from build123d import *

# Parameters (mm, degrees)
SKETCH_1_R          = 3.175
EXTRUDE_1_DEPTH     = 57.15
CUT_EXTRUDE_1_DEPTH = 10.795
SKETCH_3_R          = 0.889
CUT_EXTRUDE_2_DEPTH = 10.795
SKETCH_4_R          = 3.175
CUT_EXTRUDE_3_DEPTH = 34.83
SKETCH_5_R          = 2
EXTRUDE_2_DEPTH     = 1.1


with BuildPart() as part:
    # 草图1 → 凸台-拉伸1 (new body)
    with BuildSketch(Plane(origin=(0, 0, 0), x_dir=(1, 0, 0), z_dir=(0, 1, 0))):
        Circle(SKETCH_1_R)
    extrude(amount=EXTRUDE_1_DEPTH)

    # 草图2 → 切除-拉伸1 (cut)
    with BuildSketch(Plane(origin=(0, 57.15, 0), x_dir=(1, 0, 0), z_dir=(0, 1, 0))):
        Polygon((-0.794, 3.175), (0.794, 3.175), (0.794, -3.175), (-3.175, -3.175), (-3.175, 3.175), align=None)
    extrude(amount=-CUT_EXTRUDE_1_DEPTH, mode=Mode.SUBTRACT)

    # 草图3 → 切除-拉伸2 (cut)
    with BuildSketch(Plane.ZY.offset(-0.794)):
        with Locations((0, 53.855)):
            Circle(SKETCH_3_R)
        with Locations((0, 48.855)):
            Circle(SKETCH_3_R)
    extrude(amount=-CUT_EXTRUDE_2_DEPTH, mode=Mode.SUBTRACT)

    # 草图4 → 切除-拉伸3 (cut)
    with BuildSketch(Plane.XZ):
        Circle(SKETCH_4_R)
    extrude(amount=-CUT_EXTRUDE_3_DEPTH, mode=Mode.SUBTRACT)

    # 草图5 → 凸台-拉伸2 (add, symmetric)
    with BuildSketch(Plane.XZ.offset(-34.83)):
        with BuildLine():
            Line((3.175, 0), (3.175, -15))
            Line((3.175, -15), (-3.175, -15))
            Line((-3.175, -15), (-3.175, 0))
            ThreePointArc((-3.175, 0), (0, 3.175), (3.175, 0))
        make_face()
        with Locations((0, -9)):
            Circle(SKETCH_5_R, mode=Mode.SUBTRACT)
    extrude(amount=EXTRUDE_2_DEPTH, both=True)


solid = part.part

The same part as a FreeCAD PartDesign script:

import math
import FreeCAD as App
import Part
import Sketcher
from FreeCAD import Vector
Q = App.Units.Quantity

doc = App.newDocument("Part")
body = doc.addObject("PartDesign::Body", "Body")

# Sketch on XZ plane
sketch1 = doc.addObject("Sketcher::SketchObject", "Sketch")
body.addObject(sketch1)
sketch1.AttachmentSupport = (doc.XZ_Plane, [""])
sketch1.MapMode = "FlatFace"
sketch1.addGeometry(Part.Circle(Vector(0, 0, 0), Vector(0, 0, 1), 3.2), False)
sketch1.addConstraint(Sketcher.Constraint("Coincident", 0, 3, -1, 1))
sketch1.addConstraint(Sketcher.Constraint("Diameter", 0, Q("0.25 in")))
pad1 = doc.addObject("PartDesign::Pad", "Pad")
body.addObject(pad1)
pad1.Profile = sketch1
pad1.Length = Q("2.25 in")
pad1.Reversed = True

# Sketch on XZ plane
sketch2 = doc.addObject("Sketcher::SketchObject", "Sketch001")
body.addObject(sketch2)
sketch2.AttachmentSupport = (doc.XZ_Plane, [""])
sketch2.MapMode = "FlatFace"
sketch2.AttachmentOffset = App.Placement(Vector(0, 0, -2.25 * 25.4), App.Rotation())
sketch2.addGeometry(Part.LineSegment(Vector(0.8, -3.2, 0), Vector(-3.2, -3.2, 0)), False)
sketch2.addGeometry(Part.LineSegment(Vector(-3.2, -3.2, 0), Vector(-3.2, 3.2, 0)), False)
sketch2.addGeometry(Part.LineSegment(Vector(-3.2, 3.2, 0), Vector(0.8, 3.2, 0)), False)
sketch2.addGeometry(Part.LineSegment(Vector(0.8, 3.2, 0), Vector(0.8, -3.2, 0)), False)
sketch2.addConstraint(Sketcher.Constraint("Coincident", 0, 2, 1, 1))
sketch2.addConstraint(Sketcher.Constraint("Coincident", 1, 2, 2, 1))
sketch2.addConstraint(Sketcher.Constraint("Coincident", 2, 2, 3, 1))
sketch2.addConstraint(Sketcher.Constraint("Coincident", 3, 2, 0, 1))
sketch2.addConstraint(Sketcher.Constraint("Horizontal", 0))
sketch2.addConstraint(Sketcher.Constraint("Vertical", 1))
sketch2.addConstraint(Sketcher.Constraint("Horizontal", 2))
sketch2.addConstraint(Sketcher.Constraint("Vertical", 3))
sketch2.addConstraint(Sketcher.Constraint("DistanceY", 1, 1, 1, 2, Q("0.25 in")))
sketch2.addConstraint(Sketcher.Constraint("DistanceX", 0, 2, -1, 1, Q("0.125 in")))
sketch2.addConstraint(Sketcher.Constraint("DistanceY", 0, 2, -1, 1, Q("0.125 in")))
sketch2.addConstraint(Sketcher.Constraint("DistanceX", 0, 2, 0, 1, 3.969))
pocket1 = doc.addObject("PartDesign::Pocket", "Pocket")
body.addObject(pocket1)
pocket1.Profile = sketch2
pocket1.Length = Q("0.425 in")
pocket1.Reversed = True

# Sketch on YZ plane
sketch3 = doc.addObject("Sketcher::SketchObject", "Sketch002")
body.addObject(sketch3)
sketch3.AttachmentSupport = (doc.YZ_Plane, [""])
sketch3.MapMode = "FlatFace"
sketch3.AttachmentOffset = App.Placement(Vector(0, 0, 0.794), App.Rotation())
sketch3.addGeometry(Part.Circle(Vector(53.9, 0, 0), Vector(0, 0, 1), 0.9), False)
sketch3.addGeometry(Part.Circle(Vector(48.9, 0, 0), Vector(0, 0, 1), 0.9), False)
sketch3.addConstraint(Sketcher.Constraint("Equal", 0, 1))
sketch3.addConstraint(Sketcher.Constraint("PointOnObject", 0, 3, -1))
sketch3.addConstraint(Sketcher.Constraint("PointOnObject", 1, 3, -1))
sketch3.addConstraint(Sketcher.Constraint("Diameter", 0, Q("0.07 in")))
sketch3.addConstraint(Sketcher.Constraint("DistanceX", -1, 1, 0, 3, 53.855))
sketch3.addConstraint(Sketcher.Constraint("DistanceX", -1, 1, 1, 3, 48.855))
pocket2 = doc.addObject("PartDesign::Pocket", "Pocket001")
body.addObject(pocket2)
pocket2.Profile = sketch3
pocket2.Length = Q("0.425 in")
pocket2.Reversed = True

# Sketch on XZ plane
sketch4 = doc.addObject("Sketcher::SketchObject", "Sketch003")
body.addObject(sketch4)
sketch4.AttachmentSupport = (doc.XZ_Plane, [""])
sketch4.MapMode = "FlatFace"
sketch4.addGeometry(Part.Circle(Vector(0, 0, 0), Vector(0, 0, 1), 3.2), False)
sketch4.addConstraint(Sketcher.Constraint("Coincident", 0, 3, -1, 1))
sketch4.addConstraint(Sketcher.Constraint("Diameter", 0, Q("0.25 in")))
pocket3 = doc.addObject("PartDesign::Pocket", "Pocket002")
body.addObject(pocket3)
pocket3.Profile = sketch4
pocket3.Length = 34.83

# Sketch on XZ plane
sketch5 = doc.addObject("Sketcher::SketchObject", "Sketch004")
body.addObject(sketch5)
sketch5.AttachmentSupport = (doc.XZ_Plane, [""])
sketch5.MapMode = "FlatFace"
sketch5.AttachmentOffset = App.Placement(Vector(0, 0, -34.83), App.Rotation())
sketch5.addGeometry(Part.LineSegment(Vector(3.2, -15, 0), Vector(3.2, 0, 0)), False)
sketch5.addGeometry(Part.ArcOfCircle(Part.Circle(Vector(0, 0, 0), Vector(0, 0, 1), 3.2), math.radians(0), math.radians(180)), False)
sketch5.addGeometry(Part.LineSegment(Vector(-3.2, 0, 0), Vector(-3.2, -15, 0)), False)
sketch5.addGeometry(Part.LineSegment(Vector(-3.2, -15, 0), Vector(3.2, -15, 0)), False)
sketch5.addGeometry(Part.Circle(Vector(0, -9, 0), Vector(0, 0, 1), 2), False)
sketch5.addConstraint(Sketcher.Constraint("Tangent", 0, 2, 1, 1))
sketch5.addConstraint(Sketcher.Constraint("Tangent", 1, 2, 2, 1))
sketch5.addConstraint(Sketcher.Constraint("Coincident", 2, 2, 3, 1))
sketch5.addConstraint(Sketcher.Constraint("Coincident", 3, 2, 0, 1))
sketch5.addConstraint(Sketcher.Constraint("Vertical", 0))
sketch5.addConstraint(Sketcher.Constraint("Vertical", 2))
sketch5.addConstraint(Sketcher.Constraint("Horizontal", 3))
sketch5.addConstraint(Sketcher.Constraint("Coincident", 1, 3, -1, 1))
sketch5.addConstraint(Sketcher.Constraint("PointOnObject", 4, 3, -2))
sketch5.addConstraint(Sketcher.Constraint("Radius", 1, Q("0.125 in")))
sketch5.addConstraint(Sketcher.Constraint("Diameter", 4, 4.0))
sketch5.addConstraint(Sketcher.Constraint("DistanceY", 0, 1, 0, 2, 15.0))
sketch5.addConstraint(Sketcher.Constraint("DistanceY", 4, 3, -1, 1, 9.0))
pad2 = doc.addObject("PartDesign::Pad", "Pad001")
body.addObject(pad2)
pad2.Profile = sketch5
pad2.Length = 2.2
pad2.Midplane = True

doc.recompute()
